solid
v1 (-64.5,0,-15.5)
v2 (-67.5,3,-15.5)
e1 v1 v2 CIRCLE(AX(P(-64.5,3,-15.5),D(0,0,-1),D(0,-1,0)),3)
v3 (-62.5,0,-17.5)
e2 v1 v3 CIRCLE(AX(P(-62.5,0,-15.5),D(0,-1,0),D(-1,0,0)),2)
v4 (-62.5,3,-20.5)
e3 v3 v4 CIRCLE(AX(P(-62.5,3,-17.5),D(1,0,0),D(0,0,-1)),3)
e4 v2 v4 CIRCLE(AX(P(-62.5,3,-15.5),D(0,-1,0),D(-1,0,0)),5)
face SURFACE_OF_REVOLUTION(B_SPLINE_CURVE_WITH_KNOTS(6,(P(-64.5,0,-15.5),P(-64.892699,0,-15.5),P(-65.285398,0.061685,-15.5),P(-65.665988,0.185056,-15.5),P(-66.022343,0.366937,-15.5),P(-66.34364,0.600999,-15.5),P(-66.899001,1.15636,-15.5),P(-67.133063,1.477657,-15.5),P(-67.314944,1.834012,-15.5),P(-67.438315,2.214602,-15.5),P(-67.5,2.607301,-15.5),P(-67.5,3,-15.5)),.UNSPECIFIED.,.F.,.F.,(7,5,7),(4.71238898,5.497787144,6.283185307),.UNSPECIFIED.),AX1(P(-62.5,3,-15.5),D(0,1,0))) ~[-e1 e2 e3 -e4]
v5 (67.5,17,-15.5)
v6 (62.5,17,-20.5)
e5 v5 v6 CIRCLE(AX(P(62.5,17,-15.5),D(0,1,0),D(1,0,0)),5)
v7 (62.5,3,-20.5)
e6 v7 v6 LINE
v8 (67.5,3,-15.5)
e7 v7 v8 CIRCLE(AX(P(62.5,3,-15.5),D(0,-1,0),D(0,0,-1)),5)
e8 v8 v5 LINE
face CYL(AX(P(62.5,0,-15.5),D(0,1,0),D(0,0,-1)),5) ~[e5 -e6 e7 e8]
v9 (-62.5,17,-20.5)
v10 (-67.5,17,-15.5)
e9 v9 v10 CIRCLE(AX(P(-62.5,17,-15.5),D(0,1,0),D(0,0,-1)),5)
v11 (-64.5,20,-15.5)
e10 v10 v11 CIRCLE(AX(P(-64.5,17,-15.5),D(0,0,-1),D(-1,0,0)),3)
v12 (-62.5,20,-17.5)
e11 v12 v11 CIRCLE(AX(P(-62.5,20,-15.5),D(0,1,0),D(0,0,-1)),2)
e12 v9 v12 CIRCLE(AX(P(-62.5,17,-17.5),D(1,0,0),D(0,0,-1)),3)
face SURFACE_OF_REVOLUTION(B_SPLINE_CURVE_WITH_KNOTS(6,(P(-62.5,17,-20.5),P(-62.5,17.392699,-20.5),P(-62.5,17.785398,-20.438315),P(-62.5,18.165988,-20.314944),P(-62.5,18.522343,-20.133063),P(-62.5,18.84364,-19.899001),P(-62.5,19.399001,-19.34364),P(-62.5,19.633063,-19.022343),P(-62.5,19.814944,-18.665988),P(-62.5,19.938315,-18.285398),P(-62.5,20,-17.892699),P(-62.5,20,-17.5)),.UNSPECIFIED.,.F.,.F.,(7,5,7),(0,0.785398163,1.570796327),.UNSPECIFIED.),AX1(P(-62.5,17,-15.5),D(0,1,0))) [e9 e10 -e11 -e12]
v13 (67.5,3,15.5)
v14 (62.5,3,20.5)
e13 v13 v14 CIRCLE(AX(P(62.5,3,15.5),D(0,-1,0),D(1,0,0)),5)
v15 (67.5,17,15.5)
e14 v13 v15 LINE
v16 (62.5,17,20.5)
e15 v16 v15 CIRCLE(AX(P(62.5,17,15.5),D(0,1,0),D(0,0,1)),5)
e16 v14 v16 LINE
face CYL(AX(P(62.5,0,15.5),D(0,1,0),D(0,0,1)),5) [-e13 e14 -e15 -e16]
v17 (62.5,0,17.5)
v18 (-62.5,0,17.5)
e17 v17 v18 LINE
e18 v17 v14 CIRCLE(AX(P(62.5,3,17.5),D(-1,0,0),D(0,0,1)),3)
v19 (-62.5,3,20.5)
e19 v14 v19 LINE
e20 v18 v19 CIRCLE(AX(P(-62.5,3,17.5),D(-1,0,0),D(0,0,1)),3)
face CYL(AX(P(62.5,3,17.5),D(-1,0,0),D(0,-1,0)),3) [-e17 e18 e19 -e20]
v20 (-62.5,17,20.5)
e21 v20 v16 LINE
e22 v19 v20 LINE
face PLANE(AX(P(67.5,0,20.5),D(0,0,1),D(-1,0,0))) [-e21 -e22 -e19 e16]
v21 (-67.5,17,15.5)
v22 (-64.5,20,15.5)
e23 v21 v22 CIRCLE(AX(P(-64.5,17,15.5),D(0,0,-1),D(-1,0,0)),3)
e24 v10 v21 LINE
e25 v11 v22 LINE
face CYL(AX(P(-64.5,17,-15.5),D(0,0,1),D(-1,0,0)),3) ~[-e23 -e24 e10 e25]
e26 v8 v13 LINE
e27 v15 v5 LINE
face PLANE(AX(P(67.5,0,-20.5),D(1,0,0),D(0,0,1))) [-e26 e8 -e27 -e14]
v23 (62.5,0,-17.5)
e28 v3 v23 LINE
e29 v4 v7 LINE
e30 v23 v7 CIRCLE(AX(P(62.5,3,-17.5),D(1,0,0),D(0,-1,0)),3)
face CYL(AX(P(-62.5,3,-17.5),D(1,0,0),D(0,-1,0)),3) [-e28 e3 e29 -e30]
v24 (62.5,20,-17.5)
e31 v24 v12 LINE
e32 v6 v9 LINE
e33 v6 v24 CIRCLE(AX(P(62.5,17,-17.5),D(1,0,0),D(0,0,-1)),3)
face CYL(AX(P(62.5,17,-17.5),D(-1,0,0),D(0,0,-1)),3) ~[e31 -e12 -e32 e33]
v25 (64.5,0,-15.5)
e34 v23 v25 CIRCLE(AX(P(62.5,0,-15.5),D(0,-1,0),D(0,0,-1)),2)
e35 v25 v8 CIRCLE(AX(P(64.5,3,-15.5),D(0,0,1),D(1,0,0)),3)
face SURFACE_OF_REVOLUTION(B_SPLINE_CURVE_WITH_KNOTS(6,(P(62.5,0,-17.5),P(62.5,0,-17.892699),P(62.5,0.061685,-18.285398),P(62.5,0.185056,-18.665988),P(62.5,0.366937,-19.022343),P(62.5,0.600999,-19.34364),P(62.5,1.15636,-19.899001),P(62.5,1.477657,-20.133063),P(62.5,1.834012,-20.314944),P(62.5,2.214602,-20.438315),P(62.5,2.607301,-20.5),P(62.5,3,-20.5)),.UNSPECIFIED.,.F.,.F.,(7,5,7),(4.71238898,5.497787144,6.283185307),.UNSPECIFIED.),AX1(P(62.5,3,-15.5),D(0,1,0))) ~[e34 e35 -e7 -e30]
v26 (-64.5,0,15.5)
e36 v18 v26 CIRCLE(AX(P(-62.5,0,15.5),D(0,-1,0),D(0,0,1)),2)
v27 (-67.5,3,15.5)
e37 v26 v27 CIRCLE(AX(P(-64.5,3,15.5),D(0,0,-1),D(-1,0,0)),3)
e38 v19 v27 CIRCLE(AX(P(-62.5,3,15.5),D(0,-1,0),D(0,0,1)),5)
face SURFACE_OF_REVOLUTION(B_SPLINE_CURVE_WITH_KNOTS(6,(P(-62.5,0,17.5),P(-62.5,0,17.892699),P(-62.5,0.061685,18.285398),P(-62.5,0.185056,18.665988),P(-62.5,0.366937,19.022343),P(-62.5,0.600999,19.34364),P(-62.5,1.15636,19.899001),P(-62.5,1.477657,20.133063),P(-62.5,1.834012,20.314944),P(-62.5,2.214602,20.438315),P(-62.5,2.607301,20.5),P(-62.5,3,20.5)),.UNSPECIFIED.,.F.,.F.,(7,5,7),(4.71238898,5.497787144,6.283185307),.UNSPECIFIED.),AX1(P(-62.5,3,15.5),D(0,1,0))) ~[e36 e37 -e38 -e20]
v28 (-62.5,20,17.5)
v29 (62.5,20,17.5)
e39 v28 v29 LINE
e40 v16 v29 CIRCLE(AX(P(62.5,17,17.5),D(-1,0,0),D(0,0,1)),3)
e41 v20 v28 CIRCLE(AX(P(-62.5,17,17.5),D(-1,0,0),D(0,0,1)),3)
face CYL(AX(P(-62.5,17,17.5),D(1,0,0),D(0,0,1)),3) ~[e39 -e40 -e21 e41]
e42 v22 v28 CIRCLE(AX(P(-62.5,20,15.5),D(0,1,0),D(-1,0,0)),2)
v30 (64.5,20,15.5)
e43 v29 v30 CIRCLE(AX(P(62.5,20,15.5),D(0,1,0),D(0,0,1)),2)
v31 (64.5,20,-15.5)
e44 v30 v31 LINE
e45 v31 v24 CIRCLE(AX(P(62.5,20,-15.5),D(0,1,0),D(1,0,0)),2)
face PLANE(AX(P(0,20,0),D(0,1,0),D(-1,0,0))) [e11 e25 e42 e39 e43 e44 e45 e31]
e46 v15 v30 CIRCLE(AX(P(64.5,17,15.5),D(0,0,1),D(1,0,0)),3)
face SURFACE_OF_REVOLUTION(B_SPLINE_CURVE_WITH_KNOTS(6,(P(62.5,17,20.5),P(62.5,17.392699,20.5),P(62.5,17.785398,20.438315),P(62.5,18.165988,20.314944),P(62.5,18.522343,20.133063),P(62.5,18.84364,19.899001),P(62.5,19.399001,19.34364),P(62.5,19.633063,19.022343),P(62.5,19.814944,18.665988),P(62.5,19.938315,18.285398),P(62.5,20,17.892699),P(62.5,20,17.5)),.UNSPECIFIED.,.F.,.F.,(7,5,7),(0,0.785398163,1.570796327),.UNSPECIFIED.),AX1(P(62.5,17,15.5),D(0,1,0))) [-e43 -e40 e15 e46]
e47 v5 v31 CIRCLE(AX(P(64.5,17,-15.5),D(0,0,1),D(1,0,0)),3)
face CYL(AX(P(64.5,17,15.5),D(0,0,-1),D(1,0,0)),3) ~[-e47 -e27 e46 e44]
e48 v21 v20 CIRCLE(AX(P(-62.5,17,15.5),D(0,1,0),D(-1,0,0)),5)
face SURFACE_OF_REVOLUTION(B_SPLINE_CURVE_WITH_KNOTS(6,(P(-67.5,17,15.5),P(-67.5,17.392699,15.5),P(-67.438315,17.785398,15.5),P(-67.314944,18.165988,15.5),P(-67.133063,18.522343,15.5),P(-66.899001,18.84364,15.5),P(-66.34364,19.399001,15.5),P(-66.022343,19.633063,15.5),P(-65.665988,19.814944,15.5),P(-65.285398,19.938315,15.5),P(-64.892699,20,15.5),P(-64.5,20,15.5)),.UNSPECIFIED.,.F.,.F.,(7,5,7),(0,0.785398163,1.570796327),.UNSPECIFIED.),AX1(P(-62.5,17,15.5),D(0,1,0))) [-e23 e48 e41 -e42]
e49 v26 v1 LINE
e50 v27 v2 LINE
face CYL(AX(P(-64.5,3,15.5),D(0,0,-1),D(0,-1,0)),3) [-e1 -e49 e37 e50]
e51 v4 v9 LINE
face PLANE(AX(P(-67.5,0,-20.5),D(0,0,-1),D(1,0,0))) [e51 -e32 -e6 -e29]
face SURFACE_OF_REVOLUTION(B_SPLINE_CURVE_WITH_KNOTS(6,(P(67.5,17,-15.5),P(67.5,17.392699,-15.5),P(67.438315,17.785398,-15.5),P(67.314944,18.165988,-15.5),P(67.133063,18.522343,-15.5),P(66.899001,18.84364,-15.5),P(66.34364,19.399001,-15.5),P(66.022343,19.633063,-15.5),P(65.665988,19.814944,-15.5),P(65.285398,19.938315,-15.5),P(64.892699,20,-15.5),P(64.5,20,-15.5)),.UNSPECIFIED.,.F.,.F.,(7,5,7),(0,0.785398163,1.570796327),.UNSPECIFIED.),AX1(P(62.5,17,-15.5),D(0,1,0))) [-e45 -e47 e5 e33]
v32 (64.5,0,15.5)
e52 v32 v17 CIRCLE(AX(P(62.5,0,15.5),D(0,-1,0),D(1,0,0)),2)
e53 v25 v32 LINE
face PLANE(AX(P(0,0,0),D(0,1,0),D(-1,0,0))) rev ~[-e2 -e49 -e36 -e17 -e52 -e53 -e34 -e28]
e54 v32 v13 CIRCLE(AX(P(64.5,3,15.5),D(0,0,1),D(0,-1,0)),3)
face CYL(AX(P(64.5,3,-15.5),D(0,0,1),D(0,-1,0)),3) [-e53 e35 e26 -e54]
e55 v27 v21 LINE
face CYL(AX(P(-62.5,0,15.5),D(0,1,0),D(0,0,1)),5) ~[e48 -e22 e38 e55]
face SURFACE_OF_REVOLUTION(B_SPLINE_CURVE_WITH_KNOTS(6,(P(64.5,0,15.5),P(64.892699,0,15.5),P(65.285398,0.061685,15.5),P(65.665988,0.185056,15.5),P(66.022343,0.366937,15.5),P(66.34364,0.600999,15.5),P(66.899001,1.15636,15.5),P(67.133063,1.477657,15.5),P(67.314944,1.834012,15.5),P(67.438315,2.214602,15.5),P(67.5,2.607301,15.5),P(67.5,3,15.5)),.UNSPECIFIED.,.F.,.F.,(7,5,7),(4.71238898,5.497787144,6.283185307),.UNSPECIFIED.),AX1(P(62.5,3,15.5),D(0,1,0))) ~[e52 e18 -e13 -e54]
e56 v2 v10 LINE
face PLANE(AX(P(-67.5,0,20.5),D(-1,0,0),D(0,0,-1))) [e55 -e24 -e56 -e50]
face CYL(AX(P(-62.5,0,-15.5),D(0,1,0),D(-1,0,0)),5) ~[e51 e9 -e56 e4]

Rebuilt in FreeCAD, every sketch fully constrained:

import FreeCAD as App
import Part
import Sketcher


def edges_at(feature, points):
    """Names of the edges that pass closest to the given points."""
    edges = feature.Shape.Edges
    near = lambda p: min(range(len(edges)), key=lambda i: edges[i].distToShape(Part.Vertex(*p))[0])
    return sorted({f"Edge{near(p) + 1}" for p in points})


def add_polygon(sketch, points):
    """Adds a closed chain of lines whose ends are joined by coincident constraints."""
    first, n = sketch.GeometryCount, len(points)
    for a, b in zip(points, points[1:] + points[:1]):
        sketch.addGeometry(Part.LineSegment(App.Vector(*a, 0), App.Vector(*b, 0)), False)
    for i in range(n):
        sketch.addConstraint(Sketcher.Constraint("Coincident", first + i, 2, first + (i + 1) % n, 1))

doc = App.newDocument("Part")
body = doc.addObject("PartDesign::Body", "Body")

sketch1 = body.newObject("Sketcher::SketchObject", "Sketch")
sketch1.AttachmentSupport = (doc.getObject("XZ_Plane"), [""])
sketch1.MapMode = "FlatFace"
add_polygon(sketch1, [(-68, 20), (68, 20), (68, -20), (-68, -20)])
sketch1.addConstraint(Sketcher.Constraint("Horizontal", 0))
sketch1.addConstraint(Sketcher.Constraint("Vertical", 1))
sketch1.addConstraint(Sketcher.Constraint("Horizontal", 2))
sketch1.addConstraint(Sketcher.Constraint("Vertical", 3))
sketch1.addConstraint(Sketcher.Constraint("Symmetric", 0, 2, 2, 2, -1, 1))
sketch1.addConstraint(Sketcher.Constraint("DistanceX", 0, 1, 0, 2, 135.0))
sketch1.addConstraint(Sketcher.Constraint("DistanceY", 1, 2, 1, 1, 41.0))
pad1 = body.newObject("PartDesign::Pad", "Pad")
pad1.Profile = sketch1
pad1.Length = 20
pad1.Reversed = True
doc.recompute()

fillet = body.newObject("PartDesign::Fillet", "Fillet")
fillet.Base = (pad1, edges_at(pad1, [
    (-67.5, 10, 20.5),
    (-67.5, 10, -20.5),
    (67.5, 10, -20.5),
    (67.5, 10, 20.5),
]))
fillet.Radius = 5
doc.recompute()

fillet2 = body.newObject("PartDesign::Fillet", "Fillet001")
fillet2.Base = (fillet, edges_at(fillet, [
    (66.035, 20, 19.035),
    (67.5, 20, 0),
    (66.035, 20, -19.035),
    (0, 20, -20.5),
    (-66.035, 20, -19.035),
    (-67.5, 20, 0),
    (-66.035, 20, 19.035),
    (0, 20, 20.5),
    (-66.035, 0, 19.035),
    (-67.5, 0, 0),
    (-66.035, 0, -19.035),
    (0, 0, -20.5),
    (66.035, 0, -19.035),
    (67.5, 0, 0),
    (66.035, 0, 19.035),
    (0, 0, 20.5),
]))
fillet2.Radius = 3

doc.recompute()
